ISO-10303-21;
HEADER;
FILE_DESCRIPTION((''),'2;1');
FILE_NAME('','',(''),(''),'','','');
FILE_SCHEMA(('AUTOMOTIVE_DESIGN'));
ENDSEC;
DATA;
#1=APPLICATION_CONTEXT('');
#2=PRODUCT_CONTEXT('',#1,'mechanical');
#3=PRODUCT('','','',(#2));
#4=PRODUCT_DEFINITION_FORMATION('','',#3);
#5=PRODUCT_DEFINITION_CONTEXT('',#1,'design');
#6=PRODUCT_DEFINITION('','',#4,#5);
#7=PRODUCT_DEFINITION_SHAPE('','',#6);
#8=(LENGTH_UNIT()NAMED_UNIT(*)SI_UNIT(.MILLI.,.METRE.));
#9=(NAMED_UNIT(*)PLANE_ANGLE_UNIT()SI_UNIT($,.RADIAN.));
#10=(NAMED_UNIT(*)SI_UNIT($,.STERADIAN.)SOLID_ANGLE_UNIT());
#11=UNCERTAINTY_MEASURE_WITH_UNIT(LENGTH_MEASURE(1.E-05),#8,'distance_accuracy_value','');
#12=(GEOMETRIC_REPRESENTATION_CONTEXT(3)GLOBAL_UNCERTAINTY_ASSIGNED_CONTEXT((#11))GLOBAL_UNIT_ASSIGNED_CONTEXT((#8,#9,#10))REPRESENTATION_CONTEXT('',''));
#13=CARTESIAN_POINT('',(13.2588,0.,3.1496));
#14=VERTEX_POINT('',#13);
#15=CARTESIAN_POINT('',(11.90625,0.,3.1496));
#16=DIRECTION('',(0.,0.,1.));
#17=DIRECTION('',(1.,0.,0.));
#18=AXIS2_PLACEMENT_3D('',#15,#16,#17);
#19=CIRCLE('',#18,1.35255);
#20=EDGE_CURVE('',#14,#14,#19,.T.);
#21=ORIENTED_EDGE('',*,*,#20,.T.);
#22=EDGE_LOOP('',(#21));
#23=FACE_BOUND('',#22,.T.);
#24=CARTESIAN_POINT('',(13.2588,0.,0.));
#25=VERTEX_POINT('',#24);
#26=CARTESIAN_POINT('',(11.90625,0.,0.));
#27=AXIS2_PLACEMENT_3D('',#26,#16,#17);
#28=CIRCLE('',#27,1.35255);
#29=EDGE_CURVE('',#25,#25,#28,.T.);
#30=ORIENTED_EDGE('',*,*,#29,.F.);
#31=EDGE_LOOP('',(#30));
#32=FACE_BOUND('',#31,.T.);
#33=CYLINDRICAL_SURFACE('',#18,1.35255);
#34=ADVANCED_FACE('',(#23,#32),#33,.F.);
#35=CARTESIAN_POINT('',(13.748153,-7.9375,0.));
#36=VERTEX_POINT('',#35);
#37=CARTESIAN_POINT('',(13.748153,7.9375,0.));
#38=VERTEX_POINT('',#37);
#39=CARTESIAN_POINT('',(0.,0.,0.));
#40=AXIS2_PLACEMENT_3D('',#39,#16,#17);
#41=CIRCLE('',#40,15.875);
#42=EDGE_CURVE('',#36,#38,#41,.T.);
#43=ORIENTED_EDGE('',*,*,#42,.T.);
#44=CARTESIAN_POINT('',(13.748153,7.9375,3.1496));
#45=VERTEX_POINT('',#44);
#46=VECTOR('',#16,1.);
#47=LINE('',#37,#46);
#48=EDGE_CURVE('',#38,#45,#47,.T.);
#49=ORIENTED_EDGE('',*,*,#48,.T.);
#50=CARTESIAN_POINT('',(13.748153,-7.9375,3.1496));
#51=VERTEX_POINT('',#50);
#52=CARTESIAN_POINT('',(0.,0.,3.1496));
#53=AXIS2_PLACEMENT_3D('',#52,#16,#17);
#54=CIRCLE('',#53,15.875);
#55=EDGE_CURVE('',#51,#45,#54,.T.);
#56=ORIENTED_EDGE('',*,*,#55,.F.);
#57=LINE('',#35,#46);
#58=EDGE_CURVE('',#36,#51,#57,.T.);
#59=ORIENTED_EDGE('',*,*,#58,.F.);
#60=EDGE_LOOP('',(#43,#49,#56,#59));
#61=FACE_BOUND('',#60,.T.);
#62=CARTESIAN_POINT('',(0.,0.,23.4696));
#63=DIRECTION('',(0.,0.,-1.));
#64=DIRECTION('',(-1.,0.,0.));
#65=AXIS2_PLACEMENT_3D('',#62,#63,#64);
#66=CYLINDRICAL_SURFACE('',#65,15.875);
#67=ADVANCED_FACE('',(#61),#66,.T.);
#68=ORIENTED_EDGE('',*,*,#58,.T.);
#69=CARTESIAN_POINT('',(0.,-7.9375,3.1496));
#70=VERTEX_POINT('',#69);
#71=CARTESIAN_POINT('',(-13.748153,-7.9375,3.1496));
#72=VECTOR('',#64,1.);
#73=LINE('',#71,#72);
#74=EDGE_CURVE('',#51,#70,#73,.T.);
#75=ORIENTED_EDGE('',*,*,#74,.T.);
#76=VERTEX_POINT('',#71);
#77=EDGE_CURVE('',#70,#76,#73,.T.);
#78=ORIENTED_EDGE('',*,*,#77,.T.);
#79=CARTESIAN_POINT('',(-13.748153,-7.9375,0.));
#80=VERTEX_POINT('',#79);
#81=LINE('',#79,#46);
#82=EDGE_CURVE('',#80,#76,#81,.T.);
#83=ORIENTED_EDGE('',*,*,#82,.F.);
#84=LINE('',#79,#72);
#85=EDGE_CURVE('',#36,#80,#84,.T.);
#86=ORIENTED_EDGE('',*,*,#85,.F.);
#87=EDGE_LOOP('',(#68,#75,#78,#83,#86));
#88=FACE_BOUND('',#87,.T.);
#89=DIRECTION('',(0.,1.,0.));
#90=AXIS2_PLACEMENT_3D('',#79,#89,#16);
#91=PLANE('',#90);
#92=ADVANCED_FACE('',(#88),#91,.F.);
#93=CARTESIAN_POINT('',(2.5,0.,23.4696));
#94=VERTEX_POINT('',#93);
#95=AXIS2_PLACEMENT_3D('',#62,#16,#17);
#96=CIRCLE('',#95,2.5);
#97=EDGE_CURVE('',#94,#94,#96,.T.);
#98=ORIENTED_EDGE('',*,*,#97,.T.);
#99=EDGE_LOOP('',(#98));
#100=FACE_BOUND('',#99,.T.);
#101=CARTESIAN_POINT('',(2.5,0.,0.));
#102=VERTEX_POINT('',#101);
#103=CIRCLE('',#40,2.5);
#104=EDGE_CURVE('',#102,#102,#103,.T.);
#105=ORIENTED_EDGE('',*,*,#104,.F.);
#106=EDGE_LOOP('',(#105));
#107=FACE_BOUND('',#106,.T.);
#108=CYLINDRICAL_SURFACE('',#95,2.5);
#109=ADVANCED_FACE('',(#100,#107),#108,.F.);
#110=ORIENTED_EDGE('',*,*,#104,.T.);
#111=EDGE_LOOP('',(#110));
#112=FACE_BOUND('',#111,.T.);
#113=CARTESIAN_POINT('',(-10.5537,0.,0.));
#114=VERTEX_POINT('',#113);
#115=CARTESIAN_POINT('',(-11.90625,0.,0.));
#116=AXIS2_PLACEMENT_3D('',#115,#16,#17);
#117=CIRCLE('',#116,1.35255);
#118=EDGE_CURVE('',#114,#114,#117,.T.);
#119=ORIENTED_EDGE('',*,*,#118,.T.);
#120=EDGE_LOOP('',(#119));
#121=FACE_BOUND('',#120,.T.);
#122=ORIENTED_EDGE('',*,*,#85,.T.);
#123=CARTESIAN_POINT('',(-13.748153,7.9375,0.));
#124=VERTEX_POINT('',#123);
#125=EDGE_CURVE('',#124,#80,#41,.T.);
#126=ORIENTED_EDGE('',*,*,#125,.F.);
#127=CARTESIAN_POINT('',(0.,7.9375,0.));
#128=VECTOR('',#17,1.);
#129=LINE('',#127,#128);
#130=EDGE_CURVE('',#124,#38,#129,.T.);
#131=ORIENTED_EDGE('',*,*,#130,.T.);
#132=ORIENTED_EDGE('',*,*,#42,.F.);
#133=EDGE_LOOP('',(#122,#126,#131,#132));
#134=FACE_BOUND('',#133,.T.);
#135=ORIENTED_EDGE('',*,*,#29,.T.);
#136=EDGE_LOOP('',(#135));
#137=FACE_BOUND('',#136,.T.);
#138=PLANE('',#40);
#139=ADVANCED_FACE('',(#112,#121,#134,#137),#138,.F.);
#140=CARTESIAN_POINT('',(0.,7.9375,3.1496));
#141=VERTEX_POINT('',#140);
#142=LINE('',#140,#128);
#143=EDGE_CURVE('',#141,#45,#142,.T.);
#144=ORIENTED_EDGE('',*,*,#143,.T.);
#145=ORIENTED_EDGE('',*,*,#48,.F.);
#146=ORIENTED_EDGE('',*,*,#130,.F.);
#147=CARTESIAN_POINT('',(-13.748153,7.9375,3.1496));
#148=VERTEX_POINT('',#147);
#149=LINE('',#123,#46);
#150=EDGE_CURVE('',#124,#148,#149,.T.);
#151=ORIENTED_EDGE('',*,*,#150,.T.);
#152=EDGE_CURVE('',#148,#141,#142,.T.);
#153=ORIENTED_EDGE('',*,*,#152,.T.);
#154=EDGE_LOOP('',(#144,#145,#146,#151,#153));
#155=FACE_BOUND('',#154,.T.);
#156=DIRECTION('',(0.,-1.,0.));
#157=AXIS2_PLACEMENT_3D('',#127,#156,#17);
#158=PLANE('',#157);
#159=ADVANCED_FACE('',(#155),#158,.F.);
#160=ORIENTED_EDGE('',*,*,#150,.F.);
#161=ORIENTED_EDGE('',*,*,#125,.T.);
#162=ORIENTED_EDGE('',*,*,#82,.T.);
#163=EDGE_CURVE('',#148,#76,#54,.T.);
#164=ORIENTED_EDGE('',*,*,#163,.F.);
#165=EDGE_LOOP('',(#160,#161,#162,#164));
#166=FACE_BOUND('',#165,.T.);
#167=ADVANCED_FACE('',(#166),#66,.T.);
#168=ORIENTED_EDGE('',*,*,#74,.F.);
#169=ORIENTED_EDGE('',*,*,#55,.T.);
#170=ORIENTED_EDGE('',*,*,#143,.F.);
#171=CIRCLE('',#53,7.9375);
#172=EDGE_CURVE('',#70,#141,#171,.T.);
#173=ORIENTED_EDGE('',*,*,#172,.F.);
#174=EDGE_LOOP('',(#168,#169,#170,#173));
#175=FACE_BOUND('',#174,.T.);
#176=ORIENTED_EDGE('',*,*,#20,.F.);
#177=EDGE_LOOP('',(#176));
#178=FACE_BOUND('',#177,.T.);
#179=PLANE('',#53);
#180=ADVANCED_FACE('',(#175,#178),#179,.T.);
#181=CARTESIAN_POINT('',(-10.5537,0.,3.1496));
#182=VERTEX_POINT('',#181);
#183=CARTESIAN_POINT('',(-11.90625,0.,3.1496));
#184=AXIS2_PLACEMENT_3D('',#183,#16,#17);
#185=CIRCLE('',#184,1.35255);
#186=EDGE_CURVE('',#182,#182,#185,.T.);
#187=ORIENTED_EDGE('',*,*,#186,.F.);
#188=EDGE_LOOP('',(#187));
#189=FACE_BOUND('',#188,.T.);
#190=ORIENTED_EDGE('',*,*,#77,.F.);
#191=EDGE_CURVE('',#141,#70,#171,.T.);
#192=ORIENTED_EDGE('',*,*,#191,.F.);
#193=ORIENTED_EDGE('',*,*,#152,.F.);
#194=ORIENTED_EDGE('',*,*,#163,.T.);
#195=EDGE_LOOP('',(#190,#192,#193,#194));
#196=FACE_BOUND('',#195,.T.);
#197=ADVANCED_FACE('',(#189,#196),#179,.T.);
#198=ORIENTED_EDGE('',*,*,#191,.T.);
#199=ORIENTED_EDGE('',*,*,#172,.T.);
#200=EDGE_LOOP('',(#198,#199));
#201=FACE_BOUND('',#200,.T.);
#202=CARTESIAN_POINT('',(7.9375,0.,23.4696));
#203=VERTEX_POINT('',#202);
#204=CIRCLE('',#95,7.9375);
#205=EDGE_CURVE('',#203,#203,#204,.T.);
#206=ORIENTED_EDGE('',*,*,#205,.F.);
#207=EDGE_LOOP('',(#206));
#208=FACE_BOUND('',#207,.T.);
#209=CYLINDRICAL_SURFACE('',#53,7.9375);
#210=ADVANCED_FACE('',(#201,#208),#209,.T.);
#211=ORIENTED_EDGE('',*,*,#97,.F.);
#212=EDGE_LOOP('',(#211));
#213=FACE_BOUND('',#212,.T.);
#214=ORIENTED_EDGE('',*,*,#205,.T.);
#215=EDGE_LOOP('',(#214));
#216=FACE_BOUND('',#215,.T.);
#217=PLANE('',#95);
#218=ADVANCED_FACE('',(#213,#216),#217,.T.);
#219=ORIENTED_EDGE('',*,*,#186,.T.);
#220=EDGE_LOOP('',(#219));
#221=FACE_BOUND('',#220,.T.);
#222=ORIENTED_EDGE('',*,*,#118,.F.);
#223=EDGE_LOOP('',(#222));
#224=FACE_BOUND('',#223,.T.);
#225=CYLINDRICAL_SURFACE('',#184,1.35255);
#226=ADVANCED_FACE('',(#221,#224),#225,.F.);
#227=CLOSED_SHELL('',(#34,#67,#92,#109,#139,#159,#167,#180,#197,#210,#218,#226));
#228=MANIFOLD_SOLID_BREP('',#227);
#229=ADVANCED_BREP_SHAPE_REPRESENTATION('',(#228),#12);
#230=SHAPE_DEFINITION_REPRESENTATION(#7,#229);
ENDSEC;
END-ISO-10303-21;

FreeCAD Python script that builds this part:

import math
import FreeCAD as App
import Part
import Sketcher

V = App.Vector
Q = App.Units.Quantity

doc = App.newDocument("Part")
params = doc.addObject("Spreadsheet::Sheet", "Params")
for row, (alias, value) in enumerate([
    ("sketch1_diameter", "1.25 in"),
    ("pad1_length", "0.924 in"),
    ("sketch2_diameter", "1.25 in"),
    ("sketch2_diameter2", "0.625 in"),
    ("pocket1_length", "0.8 in"),
    ("hole_diameter", "5 mm"),
    ("hole2_diameter", "0.1065 in"),
    ("hole2_depth", "0.25 in"),
    ("sketch5_radius", "0.625 in"),
], start=1):
    params.set(f"A{row}", alias)
    params.set(f"B{row}", "=" + value)
    params.setAlias(f"B{row}", alias)

body = doc.addObject("PartDesign::Body", "Body")

# Sketch on XY plane
sketch1 = body.newObject("Sketcher::SketchObject", "Sketch")
sketch1.AttachmentSupport = (doc.getObject("XY_Plane"), [""])
sketch1.MapMode = "FlatFace"
sketch1.addGeometry(Part.Circle(V(0, 0, 0), V(0, 0, 1), 16), False)
sketch1.addConstraint([
    Sketcher.Constraint("Coincident", 0, 3, -1, 1),
    Sketcher.Constraint("Diameter", 0, Q("1.25 in")),
])
sketch1.setExpression("Constraints[1]", "Params.sketch1_diameter")
pad1 = body.newObject("PartDesign::Pad", "Pad")
pad1.Profile = sketch1
pad1.setExpression("Length", "Params.pad1_length")

# Sketch on XY plane
sketch2 = body.newObject("Sketcher::SketchObject", "Sketch001")
sketch2.AttachmentSupport = (doc.getObject("XY_Plane"), [""])
sketch2.MapMode = "FlatFace"
sketch2.AttachmentOffset = App.Placement(V(0, 0, 0.124 * 25.4), App.Rotation())
sketch2.addGeometry([
    Part.Circle(V(0, 0, 0), V(0, 0, 1), 16),
    Part.Circle(V(0, 0, 0), V(0, 0, 1), 8),
], False)
sketch2.addConstraint([
    Sketcher.Constraint("Coincident", 0, 3, -1, 1),
    Sketcher.Constraint("Coincident", 1, 3, -1, 1),
    Sketcher.Constraint("Diameter", 0, Q("1.25 in")),
    Sketcher.Constraint("Diameter", 1, Q("0.625 in")),
])
sketch2.setExpression("Constraints[2]", "Params.sketch2_diameter")
sketch2.setExpression("Constraints[3]", "Params.sketch2_diameter2")
pocket1 = body.newObject("PartDesign::Pocket", "Pocket")
pocket1.Profile = sketch2
pocket1.setExpression("Length", "Params.pocket1_length")
pocket1.Reversed = True

# Sketch on XY plane
sketch3 = body.newObject("Sketcher::SketchObject", "Sketch002")
sketch3.AttachmentSupport = (doc.getObject("XY_Plane"), [""])
sketch3.MapMode = "FlatFace"
sketch3.AttachmentOffset = App.Placement(V(0, 0, 0.924 * 25.4), App.Rotation())
sketch3.addGeometry(Part.Circle(V(0, 0, 0), V(0, 0, 1), 2.5), False)
sketch3.addConstraint([
    Sketcher.Constraint("Coincident", 0, 3, -1, 1),
    Sketcher.Constraint("Diameter", 0, Q("5 mm")),
])
doc.recompute()
hole = body.newObject("PartDesign::Hole", "Hole")
hole.Profile = sketch3
hole.ThreadType = "None"
hole.setExpression("Diameter", "Params.hole_diameter")
hole.DepthType = "ThroughAll"

# Sketch on XY plane
sketch4 = body.newObject("Sketcher::SketchObject", "Sketch003")
sketch4.AttachmentSupport = (doc.getObject("XY_Plane"), [""])
sketch4.MapMode = "FlatFace"
sketch4.AttachmentOffset = App.Placement(V(0, 0, 0.124 * 25.4), App.Rotation())
sketch4.addGeometry([
    Part.Circle(V(11.9, 0, 0), V(0, 0, 1), 1.4),
    Part.Circle(V(-11.9, 0, 0), V(0, 0, 1), 1.4),
], False)
sketch4.addConstraint([
    Sketcher.Constraint("Equal", 0, 1),
    Sketcher.Constraint("Symmetric", 0, 3, 1, 3, -1, 1),
    Sketcher.Constraint("PointOnObject", 0, 3, -1),
    Sketcher.Constraint("Diameter", 0, Q("0.1065 in")),
    Sketcher.Constraint("DistanceX", -1, 1, 0, 3, Q("0.46875 in")),
])
doc.recompute()
hole2 = body.newObject("PartDesign::Hole", "Hole001")
hole2.Profile = sketch4
hole2.ThreadType = "None"
hole2.setExpression("Diameter", "Params.hole2_diameter")
hole2.DepthType = "Dimension"
hole2.setExpression("Depth", "Params.hole2_depth")
hole2.DrillPoint = "Angled"
hole2.DrillPointAngle = 118

# Sketch on XY plane
sketch5 = body.newObject("Sketcher::SketchObject", "Sketch004")
sketch5.AttachmentSupport = (doc.getObject("XY_Plane"), [""])
sketch5.MapMode = "FlatFace"
sketch5.AttachmentOffset = App.Placement(V(0, 0, 0.124 * 25.4), App.Rotation())
sketch5.addGeometry([
    Part.ArcOfCircle(Part.Circle(V(0, 0, 0), V(0, 0, 1), 16), math.radians(30), math.radians(150)),
    Part.LineSegment(V(-14, 8, 0), V(14, 8, 0)),
    Part.LineSegment(V(14, -8, 0), V(-14, -8, 0)),
    Part.ArcOfCircle(Part.Circle(V(0, 0, 0), V(0, 0, 1), 16), math.radians(-150), math.radians(-30)),
], False)
sketch5.addConstraint([
    Sketcher.Constraint("Coincident", 0, 1, 1, 2),
    Sketcher.Constraint("Coincident", 1, 1, 0, 2),
    Sketcher.Constraint("Coincident", 2, 1, 3, 2),
    Sketcher.Constraint("Coincident", 3, 1, 2, 2),
    Sketcher.Constraint("Horizontal", 1),
    Sketcher.Constraint("Horizontal", 2),
    Sketcher.Constraint("Coincident", 0, 3, -1, 1),
    Sketcher.Constraint("Coincident", 3, 3, -1, 1),
    Sketcher.Constraint("Equal", 0, 3),
    Sketcher.Constraint("Vertical", 0, 1, 2, 1),
    Sketcher.Constraint("Radius", 0, Q("0.625 in")),
    Sketcher.Constraint("DistanceY", -1, 1, 0, 1, Q("0.3125 in")),
])
sketch5.setExpression("Constraints[10]", "Params.sketch5_radius")
pocket2 = body.newObject("PartDesign::Pocket", "Pocket001")
pocket2.Profile = sketch5
pocket2.Type = "ThroughAll"

doc.recompute()
